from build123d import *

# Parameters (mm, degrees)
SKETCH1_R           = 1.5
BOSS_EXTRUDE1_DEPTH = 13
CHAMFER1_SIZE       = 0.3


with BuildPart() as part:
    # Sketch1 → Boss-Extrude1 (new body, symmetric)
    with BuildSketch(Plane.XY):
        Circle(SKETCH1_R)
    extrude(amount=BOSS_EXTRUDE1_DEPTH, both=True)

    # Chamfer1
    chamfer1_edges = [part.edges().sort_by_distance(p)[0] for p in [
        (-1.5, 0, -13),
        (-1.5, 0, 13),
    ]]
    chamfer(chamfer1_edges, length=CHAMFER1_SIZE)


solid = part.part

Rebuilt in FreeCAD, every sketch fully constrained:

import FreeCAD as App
import Part
import Sketcher
from FreeCAD import Vector
Q = App.Units.Quantity


def edges_at(feature, points):
    """Names of the edges that pass closest to the given points."""
    edges = feature.Shape.Edges
    near = lambda p: min(range(len(edges)), key=lambda i: edges[i].distToShape(Part.Vertex(*p))[0])
    return sorted({f"Edge{near(p) + 1}" for p in points})

doc = App.newDocument("Part")
body = doc.addObject("PartDesign::Body", "Body")

# Sketch on XY plane
sketch1 = body.newObject("Sketcher::SketchObject", "Sketch")
sketch1.AttachmentSupport = (doc.getObject("XY_Plane"), [""])
sketch1.MapMode = "FlatFace"
sketch1.addGeometry(Part.Circle(Vector(0, 0, 0), Vector(0, 0, 1), 1.5), False)
sketch1.addConstraint([
    Sketcher.Constraint("Coincident", 0, 3, -1, 1),
    Sketcher.Constraint("Diameter", 0, Q("3 mm")),
])
pad1 = body.newObject("PartDesign::Pad", "Pad")
pad1.Profile = sketch1
pad1.Length = 26
pad1.Midplane = True
doc.recompute()

chamfer = body.newObject("PartDesign::Chamfer", "Chamfer")
chamfer.Base = (pad1, edges_at(pad1, [(-1.5, 0, -13), (-1.5, 0, 13)]))
chamfer.Size = 0.3

doc.recompute()
